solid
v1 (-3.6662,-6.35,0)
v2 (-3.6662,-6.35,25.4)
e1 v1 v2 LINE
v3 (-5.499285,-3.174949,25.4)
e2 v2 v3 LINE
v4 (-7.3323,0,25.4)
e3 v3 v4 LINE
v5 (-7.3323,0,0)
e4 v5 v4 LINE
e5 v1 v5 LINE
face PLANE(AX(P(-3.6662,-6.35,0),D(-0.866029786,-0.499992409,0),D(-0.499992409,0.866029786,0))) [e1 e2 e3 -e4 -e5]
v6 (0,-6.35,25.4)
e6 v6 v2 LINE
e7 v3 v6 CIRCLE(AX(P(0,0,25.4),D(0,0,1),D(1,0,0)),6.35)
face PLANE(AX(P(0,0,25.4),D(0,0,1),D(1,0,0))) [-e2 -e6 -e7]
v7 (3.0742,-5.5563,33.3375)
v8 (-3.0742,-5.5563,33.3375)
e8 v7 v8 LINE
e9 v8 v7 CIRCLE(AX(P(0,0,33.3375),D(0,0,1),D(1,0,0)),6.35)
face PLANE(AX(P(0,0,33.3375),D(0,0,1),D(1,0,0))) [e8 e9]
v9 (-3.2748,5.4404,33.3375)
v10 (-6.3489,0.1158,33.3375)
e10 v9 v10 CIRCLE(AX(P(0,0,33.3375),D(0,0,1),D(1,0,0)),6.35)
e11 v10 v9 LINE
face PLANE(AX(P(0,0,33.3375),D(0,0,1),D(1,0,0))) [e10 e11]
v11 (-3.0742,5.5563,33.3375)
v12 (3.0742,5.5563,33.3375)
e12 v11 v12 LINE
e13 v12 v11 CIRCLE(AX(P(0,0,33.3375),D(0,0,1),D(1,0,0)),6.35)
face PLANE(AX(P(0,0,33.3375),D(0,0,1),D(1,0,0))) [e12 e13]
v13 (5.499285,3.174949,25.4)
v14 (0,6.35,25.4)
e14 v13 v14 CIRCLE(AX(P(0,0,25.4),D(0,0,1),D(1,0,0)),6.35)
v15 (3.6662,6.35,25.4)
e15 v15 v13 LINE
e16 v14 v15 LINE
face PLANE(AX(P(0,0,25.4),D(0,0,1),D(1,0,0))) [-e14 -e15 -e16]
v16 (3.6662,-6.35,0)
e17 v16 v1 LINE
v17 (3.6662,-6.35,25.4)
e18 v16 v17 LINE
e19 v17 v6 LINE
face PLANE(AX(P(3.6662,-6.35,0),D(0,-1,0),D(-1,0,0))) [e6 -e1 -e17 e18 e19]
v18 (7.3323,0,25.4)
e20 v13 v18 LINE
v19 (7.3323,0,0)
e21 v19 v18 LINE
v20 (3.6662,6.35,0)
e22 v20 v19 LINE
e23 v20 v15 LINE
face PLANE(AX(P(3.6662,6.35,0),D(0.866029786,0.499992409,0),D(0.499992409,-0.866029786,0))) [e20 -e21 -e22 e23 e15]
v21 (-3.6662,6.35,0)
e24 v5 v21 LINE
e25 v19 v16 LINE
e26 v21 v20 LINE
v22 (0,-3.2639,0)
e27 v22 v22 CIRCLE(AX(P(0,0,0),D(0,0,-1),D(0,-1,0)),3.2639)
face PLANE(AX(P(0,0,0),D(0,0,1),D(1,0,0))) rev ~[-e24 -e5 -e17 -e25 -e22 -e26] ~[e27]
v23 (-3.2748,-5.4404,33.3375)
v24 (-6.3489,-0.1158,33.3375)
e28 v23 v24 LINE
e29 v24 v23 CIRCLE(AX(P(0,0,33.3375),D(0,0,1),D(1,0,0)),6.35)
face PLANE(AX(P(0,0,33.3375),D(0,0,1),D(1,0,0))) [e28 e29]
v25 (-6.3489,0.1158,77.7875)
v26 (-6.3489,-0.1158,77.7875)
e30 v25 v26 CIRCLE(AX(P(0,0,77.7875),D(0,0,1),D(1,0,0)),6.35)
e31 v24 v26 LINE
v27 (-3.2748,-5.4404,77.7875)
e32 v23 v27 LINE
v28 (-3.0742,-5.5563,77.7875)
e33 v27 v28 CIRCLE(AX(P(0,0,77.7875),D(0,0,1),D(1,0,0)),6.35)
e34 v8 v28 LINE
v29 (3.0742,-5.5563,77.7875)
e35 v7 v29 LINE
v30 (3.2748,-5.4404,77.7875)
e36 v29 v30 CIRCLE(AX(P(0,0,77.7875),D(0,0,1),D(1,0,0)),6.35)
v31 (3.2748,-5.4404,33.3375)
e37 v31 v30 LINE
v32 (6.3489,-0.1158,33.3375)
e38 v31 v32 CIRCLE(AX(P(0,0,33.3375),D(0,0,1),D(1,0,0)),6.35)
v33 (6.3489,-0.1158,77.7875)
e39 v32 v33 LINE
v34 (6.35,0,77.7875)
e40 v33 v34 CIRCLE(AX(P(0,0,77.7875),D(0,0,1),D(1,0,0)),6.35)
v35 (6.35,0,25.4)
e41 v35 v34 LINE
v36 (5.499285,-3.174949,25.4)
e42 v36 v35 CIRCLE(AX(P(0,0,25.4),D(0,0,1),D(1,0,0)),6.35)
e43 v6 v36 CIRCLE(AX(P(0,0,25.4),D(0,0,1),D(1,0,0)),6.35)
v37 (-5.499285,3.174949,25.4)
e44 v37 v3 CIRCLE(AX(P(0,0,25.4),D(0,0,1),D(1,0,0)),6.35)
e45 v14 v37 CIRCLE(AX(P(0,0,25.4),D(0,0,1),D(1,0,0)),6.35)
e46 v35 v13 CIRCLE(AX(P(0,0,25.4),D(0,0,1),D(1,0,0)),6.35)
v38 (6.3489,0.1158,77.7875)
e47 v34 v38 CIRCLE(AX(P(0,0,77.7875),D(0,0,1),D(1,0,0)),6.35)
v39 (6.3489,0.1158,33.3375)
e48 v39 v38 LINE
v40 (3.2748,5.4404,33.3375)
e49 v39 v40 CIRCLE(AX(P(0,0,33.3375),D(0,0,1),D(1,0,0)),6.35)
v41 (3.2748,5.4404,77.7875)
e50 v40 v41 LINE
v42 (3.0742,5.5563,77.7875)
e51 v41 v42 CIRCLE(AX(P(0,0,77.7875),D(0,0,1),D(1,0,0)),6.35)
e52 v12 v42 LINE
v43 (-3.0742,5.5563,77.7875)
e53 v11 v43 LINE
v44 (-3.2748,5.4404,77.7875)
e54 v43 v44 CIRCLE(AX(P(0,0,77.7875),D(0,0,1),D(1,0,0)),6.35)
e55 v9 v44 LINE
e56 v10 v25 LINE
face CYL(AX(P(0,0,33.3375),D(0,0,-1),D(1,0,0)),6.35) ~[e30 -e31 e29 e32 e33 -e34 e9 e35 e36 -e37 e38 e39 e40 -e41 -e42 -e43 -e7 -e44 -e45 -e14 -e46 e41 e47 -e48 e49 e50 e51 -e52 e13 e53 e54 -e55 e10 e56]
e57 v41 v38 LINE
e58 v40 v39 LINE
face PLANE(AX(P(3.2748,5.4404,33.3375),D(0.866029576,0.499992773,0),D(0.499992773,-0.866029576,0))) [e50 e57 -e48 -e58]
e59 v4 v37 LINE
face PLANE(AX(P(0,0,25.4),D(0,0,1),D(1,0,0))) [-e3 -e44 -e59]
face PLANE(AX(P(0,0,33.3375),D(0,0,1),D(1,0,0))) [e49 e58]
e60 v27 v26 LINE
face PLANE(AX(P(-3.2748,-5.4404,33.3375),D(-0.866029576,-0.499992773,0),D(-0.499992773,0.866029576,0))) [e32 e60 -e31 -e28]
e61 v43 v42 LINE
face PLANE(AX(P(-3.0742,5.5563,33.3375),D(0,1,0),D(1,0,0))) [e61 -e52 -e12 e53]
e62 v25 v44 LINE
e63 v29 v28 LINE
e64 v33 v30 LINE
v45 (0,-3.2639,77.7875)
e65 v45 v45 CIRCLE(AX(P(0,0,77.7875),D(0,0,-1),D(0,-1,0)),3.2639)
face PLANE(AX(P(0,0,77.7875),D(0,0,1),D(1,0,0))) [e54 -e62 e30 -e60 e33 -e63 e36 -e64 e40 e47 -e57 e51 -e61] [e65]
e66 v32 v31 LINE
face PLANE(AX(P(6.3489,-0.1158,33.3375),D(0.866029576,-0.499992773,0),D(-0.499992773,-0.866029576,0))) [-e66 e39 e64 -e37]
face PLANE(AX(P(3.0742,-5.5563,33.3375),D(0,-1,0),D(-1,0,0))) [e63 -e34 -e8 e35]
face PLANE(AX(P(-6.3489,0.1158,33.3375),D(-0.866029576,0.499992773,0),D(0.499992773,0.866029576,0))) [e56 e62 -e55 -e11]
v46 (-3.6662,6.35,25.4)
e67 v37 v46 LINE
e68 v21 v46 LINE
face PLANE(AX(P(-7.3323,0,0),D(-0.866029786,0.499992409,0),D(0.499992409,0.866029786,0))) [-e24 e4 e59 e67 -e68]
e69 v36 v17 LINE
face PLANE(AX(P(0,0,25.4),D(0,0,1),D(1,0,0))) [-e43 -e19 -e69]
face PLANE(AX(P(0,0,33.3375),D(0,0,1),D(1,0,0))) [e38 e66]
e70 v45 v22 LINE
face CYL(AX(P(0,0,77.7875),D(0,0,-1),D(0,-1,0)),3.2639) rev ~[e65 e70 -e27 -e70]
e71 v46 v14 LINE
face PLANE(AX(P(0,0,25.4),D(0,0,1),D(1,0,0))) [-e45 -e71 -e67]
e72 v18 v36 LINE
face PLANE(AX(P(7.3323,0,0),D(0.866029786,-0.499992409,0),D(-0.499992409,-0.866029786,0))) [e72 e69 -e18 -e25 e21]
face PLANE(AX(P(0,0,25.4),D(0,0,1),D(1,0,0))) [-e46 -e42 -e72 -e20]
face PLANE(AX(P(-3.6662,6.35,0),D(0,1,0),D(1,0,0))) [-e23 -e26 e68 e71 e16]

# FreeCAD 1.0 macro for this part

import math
import FreeCAD as App
import Part
import Sketcher
Q = App.Units.Quantity


def add_polygon(sketch, points):
    """Adds a closed chain of lines whose ends are joined by coincident constraints."""
    first, n = sketch.GeometryCount, len(points)
    for a, b in zip(points, points[1:] + points[:1]):
        sketch.addGeometry(Part.LineSegment(App.Vector(*a, 0), App.Vector(*b, 0)), False)
    for i in range(n):
        sketch.addConstraint(Sketcher.Constraint("Coincident", first + i, 2, first + (i + 1) % n, 1))

doc = App.newDocument("Part")
body = doc.addObject("PartDesign::Body", "Body")

# Sketch on XY plane
sketch1 = body.newObject("Sketcher::SketchObject", "Sketch")
sketch1.AttachmentSupport = (doc.getObject("XY_Plane"), [""])
sketch1.MapMode = "FlatFace"
add_polygon(sketch1, [(-4, 6), (-7, 0), (-4, -6), (4, -6), (7, 0), (4, 6)])  # lines 0-5
sketch1.addConstraint([
    Sketcher.Constraint("Horizontal", 2),
    Sketcher.Constraint("Horizontal", 5),
    Sketcher.Constraint("Symmetric", 0, 2, 3, 2, -1, 1),
    Sketcher.Constraint("Symmetric", 1, 2, 4, 2, -1, 1),
    Sketcher.Constraint("PointOnObject", 0, 2, -1),
    Sketcher.Constraint("Parallel", 0, 3),
    Sketcher.Constraint("Vertical", 2, 2, 4, 2),
    Sketcher.Constraint("DistanceY", 2, 2, 4, 2, Q("0.5 in")),
    Sketcher.Constraint("Angle", 0, Q("-119.9995 deg")),
    Sketcher.Constraint("DistanceX", 0, 2, 2, 2, Q("0.433 in")),
])
pad1 = body.newObject("PartDesign::Pad", "Pad")
pad1.Profile = sketch1
pad1.Length = Q("1 in")

# Sketch on XY plane
sketch2 = body.newObject("Sketcher::SketchObject", "Sketch001")
sketch2.AttachmentSupport = (doc.getObject("XY_Plane"), [""])
sketch2.MapMode = "FlatFace"
sketch2.AttachmentOffset = App.Placement(App.Vector(0, 0, 1 * 25.4), App.Rotation())
sketch2.addGeometry(Part.Circle(App.Vector(0, 0, 0), App.Vector(0, 0, 1), 6), False)
sketch2.addConstraint([
    Sketcher.Constraint("Coincident", 0, 3, -1, 1),
    Sketcher.Constraint("Diameter", 0, Q("0.5 in")),
])
pad2 = body.newObject("PartDesign::Pad", "Pad001")
pad2.Profile = sketch2
pad2.Length = Q("0.3125 in")

# Sketch on XY plane
sketch3 = body.newObject("Sketcher::SketchObject", "Sketch002")
sketch3.AttachmentSupport = (doc.getObject("XY_Plane"), [""])
sketch3.MapMode = "FlatFace"
sketch3.AttachmentOffset = App.Placement(App.Vector(0, 0, 1.3125 * 25.4), App.Rotation())
sketch3.addGeometry([
    Part.ArcOfCircle(Part.Circle(App.Vector(0, 0, 0), App.Vector(0, 0, 1), 6.35), math.radians(-1.04), math.radians(1.04)),  # 0
    Part.LineSegment(App.Vector(6.35, 0.12, 0), App.Vector(3.27, 5.44, 0)),  # 1
    Part.ArcOfCircle(Part.Circle(App.Vector(0, 0, 0), App.Vector(0, 0, 1), 6.35), math.radians(58.95), math.radians(61.05)),  # 2
    Part.LineSegment(App.Vector(3.07, 5.56, 0), App.Vector(-3.07, 5.56, 0)),  # 3
    Part.ArcOfCircle(Part.Circle(App.Vector(0, 0, 0), App.Vector(0, 0, 1), 6.35), math.radians(118.95), math.radians(121.05)),  # 4
    Part.LineSegment(App.Vector(-3.27, 5.44, 0), App.Vector(-6.35, 0.12, 0)),  # 5
    Part.ArcOfCircle(Part.Circle(App.Vector(0, 0, 0), App.Vector(0, 0, 1), 6.35), math.radians(178.96), math.radians(181.04)),  # 6
    Part.LineSegment(App.Vector(-6.35, -0.12, 0), App.Vector(-3.27, -5.44, 0)),  # 7
    Part.ArcOfCircle(Part.Circle(App.Vector(0, 0, 0), App.Vector(0, 0, 1), 6.35), math.radians(-121.05), math.radians(-118.95)),  # 8
    Part.LineSegment(App.Vector(-3.07, -5.56, 0), App.Vector(3.07, -5.56, 0)),  # 9
    Part.ArcOfCircle(Part.Circle(App.Vector(0, 0, 0), App.Vector(0, 0, 1), 6.35), math.radians(-61.05), math.radians(-58.95)),  # 10
    Part.LineSegment(App.Vector(3.27, -5.44, 0), App.Vector(6.35, -0.12, 0)),  # 11
], False)
sketch3.addConstraint([
    Sketcher.Constraint("Coincident", 0, 2, 1, 1),
    Sketcher.Constraint("Coincident", 1, 2, 2, 1),
    Sketcher.Constraint("Coincident", 2, 2, 3, 1),
    Sketcher.Constraint("Coincident", 3, 2, 4, 1),
    Sketcher.Constraint("Coincident", 4, 2, 5, 1),
    Sketcher.Constraint("Coincident", 5, 2, 6, 1),
    Sketcher.Constraint("Coincident", 6, 2, 7, 1),
    Sketcher.Constraint("Coincident", 7, 2, 8, 1),
    Sketcher.Constraint("Coincident", 8, 2, 9, 1),
    Sketcher.Constraint("Coincident", 9, 2, 10, 1),
    Sketcher.Constraint("Coincident", 10, 2, 11, 1),
    Sketcher.Constraint("Coincident", 11, 2, 0, 1),
    Sketcher.Constraint("Horizontal", 3),
    Sketcher.Constraint("Horizontal", 9),
    Sketcher.Constraint("Coincident", 0, 3, -1, 1),
    Sketcher.Constraint("Coincident", 2, 3, -1, 1),
    Sketcher.Constraint("Coincident", 4, 3, -1, 1),
    Sketcher.Constraint("Coincident", 6, 3, -1, 1),
    Sketcher.Constraint("Coincident", 8, 3, -1, 1),
    Sketcher.Constraint("Coincident", 10, 3, -1, 1),
    Sketcher.Constraint("Equal", 0, 2),
    Sketcher.Constraint("Equal", 2, 4),
    Sketcher.Constraint("Equal", 4, 6),
    Sketcher.Constraint("Equal", 6, 8),
    Sketcher.Constraint("Equal", 8, 10),
    Sketcher.Constraint("Parallel", 1, 7),
    Sketcher.Constraint("Parallel", 5, 11),
    Sketcher.Constraint("Horizontal", 1, 2, 4, 2),
    Sketcher.Constraint("Horizontal", 0, 2, 5, 2),
    Sketcher.Constraint("Horizontal", 7, 2, 10, 2),
    Sketcher.Constraint("Vertical", 5, 2, 6, 2),
    Sketcher.Constraint("Vertical", 3, 2, 8, 2),
    Sketcher.Constraint("Radius", 0, Q("0.25 in")),
    Sketcher.Constraint("Angle", 1, Q("119.9995 deg")),
    Sketcher.Constraint("DistanceY", -1, 1, 2, 2, Q("0.218752 in")),
    Sketcher.Constraint("DistanceY", 6, 2, 4, 2, Q("0.218748 in")),
])
pad3 = body.newObject("PartDesign::Pad", "Pad002")
pad3.Profile = sketch3
pad3.Length = Q("1.75 in")

# Sketch on XY plane
sketch4 = body.newObject("Sketcher::SketchObject", "Sketch003")
sketch4.AttachmentSupport = (doc.getObject("XY_Plane"), [""])
sketch4.MapMode = "FlatFace"
sketch4.AttachmentOffset = App.Placement(App.Vector(0, 0, 3.0625 * 25.4), App.Rotation())
sketch4.addGeometry(Part.Circle(App.Vector(0, 0, 0), App.Vector(0, 0, 1), 3.3), False)
sketch4.addConstraint([
    Sketcher.Constraint("Coincident", 0, 3, -1, 1),
    Sketcher.Constraint("Diameter", 0, Q("0.257 in")),
])
doc.recompute()
hole = body.newObject("PartDesign::Hole", "Hole")
hole.Profile = sketch4
hole.ThreadType = "None"
hole.Diameter = Q("0.257 in")
hole.DepthType = "ThroughAll"

doc.recompute()
